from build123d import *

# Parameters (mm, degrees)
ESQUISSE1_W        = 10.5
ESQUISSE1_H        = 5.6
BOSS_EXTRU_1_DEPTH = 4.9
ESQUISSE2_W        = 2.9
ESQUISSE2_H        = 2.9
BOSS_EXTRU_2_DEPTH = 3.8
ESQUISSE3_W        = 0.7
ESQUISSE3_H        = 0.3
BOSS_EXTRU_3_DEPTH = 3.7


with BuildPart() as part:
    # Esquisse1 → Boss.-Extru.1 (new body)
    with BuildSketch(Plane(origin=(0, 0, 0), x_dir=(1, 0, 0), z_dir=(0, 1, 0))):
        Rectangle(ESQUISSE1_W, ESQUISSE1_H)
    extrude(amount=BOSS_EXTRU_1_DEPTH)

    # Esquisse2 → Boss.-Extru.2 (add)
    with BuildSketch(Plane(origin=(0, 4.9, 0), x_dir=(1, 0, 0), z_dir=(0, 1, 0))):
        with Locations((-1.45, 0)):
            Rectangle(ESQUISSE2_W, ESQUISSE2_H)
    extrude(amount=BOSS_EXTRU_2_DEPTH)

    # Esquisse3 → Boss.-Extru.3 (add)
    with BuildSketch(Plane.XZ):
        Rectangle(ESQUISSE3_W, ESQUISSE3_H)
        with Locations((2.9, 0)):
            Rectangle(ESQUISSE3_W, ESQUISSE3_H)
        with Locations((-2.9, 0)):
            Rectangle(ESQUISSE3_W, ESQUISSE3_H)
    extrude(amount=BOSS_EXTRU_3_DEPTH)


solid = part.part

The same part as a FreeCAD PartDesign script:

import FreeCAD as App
import Part
import Sketcher
Q = App.Units.Quantity


def add_polygon(sketch, points):
    """Adds a closed chain of lines whose ends are joined by coincident constraints."""
    first, n = sketch.GeometryCount, len(points)
    for a, b in zip(points, points[1:] + points[:1]):
        sketch.addGeometry(Part.LineSegment(App.Vector(*a, 0), App.Vector(*b, 0)), False)
    for i in range(n):
        sketch.addConstraint(Sketcher.Constraint("Coincident", first + i, 2, first + (i + 1) % n, 1))

doc = App.newDocument("Part")
params = doc.addObject("Spreadsheet::Sheet", "Params")
for row, (alias, value) in enumerate([
    ("sketch1_width", "10.5 mm"),
    ("sketch1_height", "5.6 mm"),
    ("pad1_length", "4.9 mm"),
    ("sketch2_width", "2.9 mm"),
    ("pad2_length", "3.8 mm"),
    ("sketch3_width", "0.7 mm"),
    ("sketch3_height", "0.3 mm"),
    ("pad3_length", "3.7 mm"),
], start=1):
    params.set(f"A{row}", alias)
    params.set(f"B{row}", "=" + value)
    params.setAlias(f"B{row}", alias)

body = doc.addObject("PartDesign::Body", "Body")

# Sketch on XZ plane
sketch1 = body.newObject("Sketcher::SketchObject", "Sketch")
sketch1.AttachmentSupport = (doc.getObject("XZ_Plane"), [""])
sketch1.MapMode = "FlatFace"
add_polygon(sketch1, [(-5, -3), (-5, 3), (5, 3), (5, -3)])  # lines 0-3
sketch1.addConstraint(Sketcher.Constraint("Vertical", 0))
sketch1.addConstraint(Sketcher.Constraint("Horizontal", 1))
sketch1.addConstraint(Sketcher.Constraint("Vertical", 2))
sketch1.addConstraint(Sketcher.Constraint("Horizontal", 3))
sketch1.addConstraint(Sketcher.Constraint("Symmetric", 0, 2, 2, 2, -1, 1))
sketch1.addConstraint(Sketcher.Constraint("DistanceX", 1, 1, 1, 2, Q("10.5 mm")))
sketch1.addConstraint(Sketcher.Constraint("DistanceY", 0, 1, 0, 2, Q("5.6 mm")))
sketch1.setExpression("Constraints[9]", "Params.sketch1_width")
sketch1.setExpression("Constraints[10]", "Params.sketch1_height")
pad1 = body.newObject("PartDesign::Pad", "Pad")
pad1.Profile = sketch1
pad1.setExpression("Length", "Params.pad1_length")
pad1.Reversed = True

# Sketch on XZ plane
sketch2 = body.newObject("Sketcher::SketchObject", "Sketch001")
sketch2.AttachmentSupport = (doc.getObject("XZ_Plane"), [""])
sketch2.MapMode = "FlatFace"
sketch2.AttachmentOffset = App.Placement(App.Vector(0, 0, -4.9), App.Rotation())
add_polygon(sketch2, [(-2.9, -1.4), (-2.9, 1.4), (0, 1.4), (0, -1.4)])  # lines 0-3
sketch2.addConstraint(Sketcher.Constraint("Vertical", 0))
sketch2.addConstraint(Sketcher.Constraint("Horizontal", 1))
sketch2.addConstraint(Sketcher.Constraint("Vertical", 2))
sketch2.addConstraint(Sketcher.Constraint("Horizontal", 3))
sketch2.addConstraint(Sketcher.Constraint("Symmetric", 1, 2, 2, 2, -1, 1))
sketch2.addConstraint(Sketcher.Constraint("Equal", 3, 0))
sketch2.addConstraint(Sketcher.Constraint("DistanceX", 1, 1, 1, 2, Q("2.9 mm")))
sketch2.setExpression("Constraints[10]", "Params.sketch2_width")
pad2 = body.newObject("PartDesign::Pad", "Pad001")
pad2.Profile = sketch2
pad2.setExpression("Length", "Params.pad2_length")
pad2.Reversed = True

# Sketch on XZ plane
sketch3 = body.newObject("Sketcher::SketchObject", "Sketch002")
sketch3.AttachmentSupport = (doc.getObject("XZ_Plane"), [""])
sketch3.MapMode = "FlatFace"
add_polygon(sketch3, [(-0.35, 0.15), (-0.35, -0.15), (0.35, -0.15), (0.35, 0.15)])  # lines 0-3
add_polygon(sketch3, [(2.55, 0.15), (2.55, -0.15), (3.25, -0.15), (3.25, 0.15)])  # lines 4-7
add_polygon(sketch3, [(-3.25, 0.15), (-3.25, -0.15), (-2.55, -0.15), (-2.55, 0.15)])  # lines 8-11
sketch3.addConstraint(Sketcher.Constraint("Vertical", 0))
sketch3.addConstraint(Sketcher.Constraint("Horizontal", 1))
sketch3.addConstraint(Sketcher.Constraint("Vertical", 2))
sketch3.addConstraint(Sketcher.Constraint("Horizontal", 3))
sketch3.addConstraint(Sketcher.Constraint("Vertical", 4))
sketch3.addConstraint(Sketcher.Constraint("Horizontal", 5))
sketch3.addConstraint(Sketcher.Constraint("Vertical", 6))
sketch3.addConstraint(Sketcher.Constraint("Horizontal", 7))
sketch3.addConstraint(Sketcher.Constraint("Vertical", 8))
sketch3.addConstraint(Sketcher.Constraint("Horizontal", 9))
sketch3.addConstraint(Sketcher.Constraint("Vertical", 10))
sketch3.addConstraint(Sketcher.Constraint("Horizontal", 11))
sketch3.addConstraint(Sketcher.Constraint("Symmetric", 0, 2, 2, 2, -1, 1))
sketch3.addConstraint(Sketcher.Constraint("Symmetric", 6, 2, 8, 2, -1, 1))
sketch3.addConstraint(Sketcher.Constraint("Symmetric", 4, 2, 10, 2, -1, 1))
sketch3.addConstraint(Sketcher.Constraint("Horizontal", 1, 2, 4, 2))
sketch3.addConstraint(Sketcher.Constraint("Horizontal", 3, 2, 6, 2))
sketch3.addConstraint(Sketcher.Constraint("Equal", 3, 5))
sketch3.addConstraint(Sketcher.Constraint("DistanceX", 1, 1, 1, 2, Q("0.7 mm")))
sketch3.addConstraint(Sketcher.Constraint("DistanceY", 0, 2, 0, 1, Q("0.3 mm")))
sketch3.addConstraint(Sketcher.Constraint("DistanceX", 1, 2, 4, 2, Q("2.2 mm")))
sketch3.setExpression("Constraints[30]", "Params.sketch3_width")
sketch3.setExpression("Constraints[31]", "Params.sketch3_height")
pad3 = body.newObject("PartDesign::Pad", "Pad002")
pad3.Profile = sketch3
pad3.setExpression("Length", "Params.pad3_length")

doc.recompute()
